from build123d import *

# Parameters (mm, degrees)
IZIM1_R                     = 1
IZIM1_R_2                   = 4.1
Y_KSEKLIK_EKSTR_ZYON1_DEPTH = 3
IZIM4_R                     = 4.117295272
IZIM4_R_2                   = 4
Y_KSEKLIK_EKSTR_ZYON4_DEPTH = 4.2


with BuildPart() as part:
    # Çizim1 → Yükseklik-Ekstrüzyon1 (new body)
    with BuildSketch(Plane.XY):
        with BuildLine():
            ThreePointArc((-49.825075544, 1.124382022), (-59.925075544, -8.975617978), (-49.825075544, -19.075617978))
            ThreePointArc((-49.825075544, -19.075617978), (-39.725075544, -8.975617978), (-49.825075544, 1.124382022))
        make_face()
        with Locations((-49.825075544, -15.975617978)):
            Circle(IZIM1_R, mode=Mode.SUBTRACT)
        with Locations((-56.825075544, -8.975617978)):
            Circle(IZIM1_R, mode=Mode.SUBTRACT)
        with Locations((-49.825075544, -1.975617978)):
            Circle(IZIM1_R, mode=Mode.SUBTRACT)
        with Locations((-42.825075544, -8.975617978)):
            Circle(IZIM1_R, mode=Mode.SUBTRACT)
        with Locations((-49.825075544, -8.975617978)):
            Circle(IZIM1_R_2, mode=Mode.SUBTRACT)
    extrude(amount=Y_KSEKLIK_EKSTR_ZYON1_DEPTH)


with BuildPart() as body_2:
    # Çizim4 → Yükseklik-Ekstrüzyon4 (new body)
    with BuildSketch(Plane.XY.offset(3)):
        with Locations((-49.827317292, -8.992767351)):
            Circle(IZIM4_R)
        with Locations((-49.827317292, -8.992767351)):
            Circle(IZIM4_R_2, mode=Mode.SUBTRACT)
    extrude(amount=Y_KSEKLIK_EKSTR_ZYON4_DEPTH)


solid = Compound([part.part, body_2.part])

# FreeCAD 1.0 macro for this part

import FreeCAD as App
import Part
import Sketcher

V = App.Vector
Q = App.Units.Quantity

doc = App.newDocument("Part")
body = doc.addObject("PartDesign::Body", "Body")

# Sketch on XY plane
sketch1 = body.newObject("Sketcher::SketchObject", "Sketch")
sketch1.AttachmentSupport = (doc.getObject("XY_Plane"), [""])
sketch1.MapMode = "FlatFace"
sketch1.addGeometry(Part.Circle(V(-49.8, -9, 0), V(0, 0, 1), 10.1), False)
sketch1.addGeometry(Part.Circle(V(-49.8, -16, 0), V(0, 0, 1), 1), False)
sketch1.addGeometry(Part.Circle(V(-56.8, -9, 0), V(0, 0, 1), 1), False)
sketch1.addGeometry(Part.Circle(V(-49.8, -9, 0), V(0, 0, 1), 4.1), False)
sketch1.addGeometry(Part.Circle(V(-42.8, -9, 0), V(0, 0, 1), 1), False)
sketch1.addGeometry(Part.Circle(V(-49.8, -2, 0), V(0, 0, 1), 1), False)
sketch1.addConstraint(Sketcher.Constraint("Coincident", 3, 3, 0, 3))
sketch1.addConstraint(Sketcher.Constraint("Equal", 1, 2))
sketch1.addConstraint(Sketcher.Constraint("Equal", 2, 4))
sketch1.addConstraint(Sketcher.Constraint("Equal", 4, 5))
sketch1.addConstraint(Sketcher.Constraint("Horizontal", 0, 3, 2, 3))
sketch1.addConstraint(Sketcher.Constraint("Horizontal", 3, 3, 4, 3))
sketch1.addConstraint(Sketcher.Constraint("Vertical", 0, 3, 1, 3))
sketch1.addConstraint(Sketcher.Constraint("Vertical", 3, 3, 5, 3))
sketch1.addConstraint(Sketcher.Constraint("Diameter", 1, Q("2 mm")))
sketch1.addConstraint(Sketcher.Constraint("Diameter", 0, Q("20.2 mm")))
sketch1.addConstraint(Sketcher.Constraint("Diameter", 3, Q("8.2 mm")))
sketch1.addConstraint(Sketcher.Constraint("DistanceY", 1, 3, 0, 3, Q("7 mm")))
sketch1.addConstraint(Sketcher.Constraint("DistanceX", 2, 3, 0, 3, Q("7 mm")))
sketch1.addConstraint(Sketcher.Constraint("DistanceX", 0, 3, 4, 3, Q("7 mm")))
sketch1.addConstraint(Sketcher.Constraint("DistanceY", 0, 3, 5, 3, Q("7 mm")))
sketch1.addConstraint(Sketcher.Constraint("DistanceX", 0, 3, -1, 1, Q("49.825076 mm")))
sketch1.addConstraint(Sketcher.Constraint("DistanceY", 0, 3, -1, 1, Q("8.975618 mm")))
pad1 = body.newObject("PartDesign::Pad", "Pad")
pad1.Profile = sketch1
pad1.Length = 3
body2 = doc.addObject("PartDesign::Body", "Body001")

# Sketch on XY plane
sketch2 = body2.newObject("Sketcher::SketchObject", "Sketch001")
sketch2.AttachmentSupport = (doc.getObject("XY_Plane001"), [""])
sketch2.MapMode = "FlatFace"
sketch2.AttachmentOffset = App.Placement(V(0, 0, 3), App.Rotation())
sketch2.addGeometry(Part.Circle(V(-49.8, -9, 0), V(0, 0, 1), 4.1), False)
sketch2.addGeometry(Part.Circle(V(-49.8, -9, 0), V(0, 0, 1), 4), False)
sketch2.addConstraint(Sketcher.Constraint("Coincident", 1, 3, 0, 3))
sketch2.addConstraint(Sketcher.Constraint("Diameter", 1, Q("8 mm")))
sketch2.addConstraint(Sketcher.Constraint("Diameter", 0, Q("8.234591 mm")))
sketch2.addConstraint(Sketcher.Constraint("DistanceX", 0, 3, -1, 1, Q("49.827317 mm")))
sketch2.addConstraint(Sketcher.Constraint("DistanceY", 0, 3, -1, 1, Q("8.992767 mm")))
pad2 = body2.newObject("PartDesign::Pad", "Pad001")
pad2.Profile = sketch2
pad2.Length = 4.2

doc.recompute()
